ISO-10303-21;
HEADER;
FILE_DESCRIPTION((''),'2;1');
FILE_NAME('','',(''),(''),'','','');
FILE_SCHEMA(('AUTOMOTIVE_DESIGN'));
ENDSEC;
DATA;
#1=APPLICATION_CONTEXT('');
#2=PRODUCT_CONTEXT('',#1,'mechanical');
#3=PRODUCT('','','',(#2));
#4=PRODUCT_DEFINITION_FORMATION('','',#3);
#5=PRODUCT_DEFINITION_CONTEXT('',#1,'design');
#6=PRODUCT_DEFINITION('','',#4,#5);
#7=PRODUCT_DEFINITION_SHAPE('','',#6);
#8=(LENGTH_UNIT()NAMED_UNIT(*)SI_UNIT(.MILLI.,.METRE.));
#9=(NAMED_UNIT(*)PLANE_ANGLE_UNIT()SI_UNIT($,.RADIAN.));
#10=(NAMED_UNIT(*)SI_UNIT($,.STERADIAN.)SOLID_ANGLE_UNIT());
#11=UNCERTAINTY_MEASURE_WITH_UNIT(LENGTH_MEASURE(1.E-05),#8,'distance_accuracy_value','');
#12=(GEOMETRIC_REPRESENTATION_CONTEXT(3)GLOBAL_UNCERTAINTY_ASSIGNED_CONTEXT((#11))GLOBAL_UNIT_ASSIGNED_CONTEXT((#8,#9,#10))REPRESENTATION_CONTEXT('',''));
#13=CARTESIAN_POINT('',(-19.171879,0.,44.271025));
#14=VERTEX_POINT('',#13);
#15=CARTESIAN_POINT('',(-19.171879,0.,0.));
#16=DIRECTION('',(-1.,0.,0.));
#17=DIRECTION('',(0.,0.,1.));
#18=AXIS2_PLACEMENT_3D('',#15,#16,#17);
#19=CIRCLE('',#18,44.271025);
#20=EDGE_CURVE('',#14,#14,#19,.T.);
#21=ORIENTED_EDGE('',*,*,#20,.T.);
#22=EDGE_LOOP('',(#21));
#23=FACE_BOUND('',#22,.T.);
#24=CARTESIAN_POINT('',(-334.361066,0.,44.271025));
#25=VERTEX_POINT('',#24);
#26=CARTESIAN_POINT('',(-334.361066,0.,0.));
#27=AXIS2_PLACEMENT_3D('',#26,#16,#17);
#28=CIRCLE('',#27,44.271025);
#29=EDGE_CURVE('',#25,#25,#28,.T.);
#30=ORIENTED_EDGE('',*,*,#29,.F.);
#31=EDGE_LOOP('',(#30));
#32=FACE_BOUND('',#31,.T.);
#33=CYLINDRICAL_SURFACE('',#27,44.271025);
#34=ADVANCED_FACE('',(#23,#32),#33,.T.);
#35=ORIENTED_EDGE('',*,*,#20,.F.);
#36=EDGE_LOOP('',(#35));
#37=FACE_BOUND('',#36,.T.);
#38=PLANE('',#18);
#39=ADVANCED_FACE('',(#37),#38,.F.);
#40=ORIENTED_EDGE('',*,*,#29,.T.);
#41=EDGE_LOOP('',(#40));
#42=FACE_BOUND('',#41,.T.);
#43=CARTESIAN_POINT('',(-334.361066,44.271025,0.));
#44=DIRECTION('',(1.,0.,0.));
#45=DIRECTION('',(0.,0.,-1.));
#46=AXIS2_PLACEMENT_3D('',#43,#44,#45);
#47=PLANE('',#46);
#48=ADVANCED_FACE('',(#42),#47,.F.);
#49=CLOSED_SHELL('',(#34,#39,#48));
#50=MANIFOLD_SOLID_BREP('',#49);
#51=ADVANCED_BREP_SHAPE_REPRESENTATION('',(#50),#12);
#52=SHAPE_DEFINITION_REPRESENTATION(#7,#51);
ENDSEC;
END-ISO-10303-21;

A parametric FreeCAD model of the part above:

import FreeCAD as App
import Part
import Sketcher
from FreeCAD import Vector

doc = App.newDocument("Part")
body = doc.addObject("PartDesign::Body", "Body")

sketch1 = body.newObject("Sketcher::SketchObject", "Sketch")
sketch1.AttachmentSupport = (doc.getObject("XY_Plane"), [""])
sketch1.MapMode = "FlatFace"
sketch1.addGeometry([
    Part.LineSegment(Vector(-334, 44, 0), Vector(-334, 0, 0)),
    Part.LineSegment(Vector(-334, 0, 0), Vector(-19, 0, 0)),
    Part.LineSegment(Vector(-19, 0, 0), Vector(-19, 44, 0)),
    Part.LineSegment(Vector(-19, 44, 0), Vector(-334, 44, 0)),
], False)
sketch1.addConstraint([
    Sketcher.Constraint("Coincident", 0, 2, 1, 1),
    Sketcher.Constraint("Coincident", 1, 2, 2, 1),
    Sketcher.Constraint("Coincident", 2, 2, 3, 1),
    Sketcher.Constraint("Coincident", 3, 2, 0, 1),
    Sketcher.Constraint("Vertical", 0),
    Sketcher.Constraint("Horizontal", 1),
    Sketcher.Constraint("Vertical", 2),
    Sketcher.Constraint("Horizontal", 3),
    Sketcher.Constraint("PointOnObject", 0, 2, -1),
    Sketcher.Constraint("DistanceX", 1, 1, 1, 2, 315.189187),
    Sketcher.Constraint("DistanceY", 0, 2, 0, 1, 44.271025),
    Sketcher.Constraint("DistanceX", 1, 2, -1, 1, 19.171879),
])
revolution = body.newObject("PartDesign::Revolution", "Revolution")
revolution.Profile = sketch1
revolution.ReferenceAxis = (sketch1, ["H_Axis"])
revolution.Angle = 360

doc.recompute()
